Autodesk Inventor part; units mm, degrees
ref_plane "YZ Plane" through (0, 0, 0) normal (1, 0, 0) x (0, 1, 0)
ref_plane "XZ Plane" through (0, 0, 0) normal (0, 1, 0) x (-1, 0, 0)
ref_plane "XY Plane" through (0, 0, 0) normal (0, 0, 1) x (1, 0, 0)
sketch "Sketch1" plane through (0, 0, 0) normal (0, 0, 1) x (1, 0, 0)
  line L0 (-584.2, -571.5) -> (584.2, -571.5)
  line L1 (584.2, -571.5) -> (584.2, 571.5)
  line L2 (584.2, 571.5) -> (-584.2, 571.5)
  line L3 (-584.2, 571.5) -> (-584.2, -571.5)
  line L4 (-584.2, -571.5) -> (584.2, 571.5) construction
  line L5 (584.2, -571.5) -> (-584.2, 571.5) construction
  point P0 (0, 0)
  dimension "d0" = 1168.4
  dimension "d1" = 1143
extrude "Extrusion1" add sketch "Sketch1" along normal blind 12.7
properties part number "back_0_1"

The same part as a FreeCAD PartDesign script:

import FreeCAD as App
import Part
import Sketcher
Q = App.Units.Quantity


def add_polygon(sketch, points):
    """Adds a closed chain of lines whose ends are joined by coincident constraints."""
    first, n = sketch.GeometryCount, len(points)
    for a, b in zip(points, points[1:] + points[:1]):
        sketch.addGeometry(Part.LineSegment(App.Vector(*a, 0), App.Vector(*b, 0)), False)
    for i in range(n):
        sketch.addConstraint(Sketcher.Constraint("Coincident", first + i, 2, first + (i + 1) % n, 1))

doc = App.newDocument("Part")
params = doc.addObject("Spreadsheet::Sheet", "Params")
for row, (alias, value) in enumerate([
    ("sketch1_width", "46 in"),
    ("sketch1_height", "45 in"),
    ("pad1_length", "0.5 in"),
], start=1):
    params.set(f"A{row}", alias)
    params.set(f"B{row}", "=" + value)
    params.setAlias(f"B{row}", alias)

body = doc.addObject("PartDesign::Body", "Body")

# Sketch on XY plane
sketch1 = body.newObject("Sketcher::SketchObject", "Sketch")
sketch1.AttachmentSupport = (doc.getObject("XY_Plane"), [""])
sketch1.MapMode = "FlatFace"
add_polygon(sketch1, [(-584.2, 571.5), (-584.2, -571.5), (584.2, -571.5), (584.2, 571.5)])  # lines 0-3
sketch1.addConstraint(Sketcher.Constraint("Vertical", 0))
sketch1.addConstraint(Sketcher.Constraint("Horizontal", 1))
sketch1.addConstraint(Sketcher.Constraint("Vertical", 2))
sketch1.addConstraint(Sketcher.Constraint("Horizontal", 3))
sketch1.addConstraint(Sketcher.Constraint("Symmetric", 0, 2, 2, 2, -1, 1))
sketch1.addConstraint(Sketcher.Constraint("DistanceX", 1, 1, 1, 2, Q("46 in")))
sketch1.addConstraint(Sketcher.Constraint("DistanceY", 0, 2, 0, 1, Q("45 in")))
sketch1.setExpression("Constraints[9]", "Params.sketch1_width")
sketch1.setExpression("Constraints[10]", "Params.sketch1_height")
pad1 = body.newObject("PartDesign::Pad", "Pad")
pad1.Profile = sketch1
pad1.setExpression("Length", "Params.pad1_length")

doc.recompute()
